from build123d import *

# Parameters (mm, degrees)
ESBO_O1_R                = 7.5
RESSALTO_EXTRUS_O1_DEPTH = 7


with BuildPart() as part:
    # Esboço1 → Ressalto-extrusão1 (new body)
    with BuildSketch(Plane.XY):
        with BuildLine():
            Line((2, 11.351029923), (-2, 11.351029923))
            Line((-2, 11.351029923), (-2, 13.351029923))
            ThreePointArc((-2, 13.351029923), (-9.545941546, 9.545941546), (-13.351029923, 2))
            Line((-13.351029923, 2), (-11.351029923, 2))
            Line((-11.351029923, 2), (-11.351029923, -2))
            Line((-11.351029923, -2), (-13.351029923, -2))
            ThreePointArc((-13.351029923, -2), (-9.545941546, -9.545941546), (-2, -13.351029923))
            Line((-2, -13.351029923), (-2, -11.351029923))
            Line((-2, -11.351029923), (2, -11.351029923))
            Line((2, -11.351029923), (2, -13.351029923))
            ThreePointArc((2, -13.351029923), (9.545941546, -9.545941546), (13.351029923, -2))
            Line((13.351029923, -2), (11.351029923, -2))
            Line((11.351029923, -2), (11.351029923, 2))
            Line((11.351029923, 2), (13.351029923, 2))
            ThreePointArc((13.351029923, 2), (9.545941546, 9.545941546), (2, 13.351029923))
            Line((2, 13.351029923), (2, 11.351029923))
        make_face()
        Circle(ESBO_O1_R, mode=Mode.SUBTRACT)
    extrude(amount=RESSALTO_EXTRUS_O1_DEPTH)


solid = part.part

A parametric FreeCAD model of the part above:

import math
import FreeCAD as App
import Part
import Sketcher

doc = App.newDocument("Part")
body = doc.addObject("PartDesign::Body", "Body")

# Sketch on XY plane
sketch1 = body.newObject("Sketcher::SketchObject", "Sketch")
sketch1.AttachmentSupport = (doc.getObject("XY_Plane"), [""])
sketch1.MapMode = "FlatFace"
sketch1.addGeometry(Part.LineSegment(App.Vector(2, 11.35103, 0), App.Vector(-2, 11.35103, 0)), False)
sketch1.addGeometry(Part.LineSegment(App.Vector(-2, 11.35103, 0), App.Vector(-2, 13.35103, 0)), False)
sketch1.addGeometry(Part.ArcOfCircle(Part.Circle(App.Vector(0, 0, 0), App.Vector(0, 0, 1), 13.5), math.radians(98.519624), math.radians(171.480376)), False)
sketch1.addGeometry(Part.LineSegment(App.Vector(-13.35103, 2, 0), App.Vector(-11.35103, 2, 0)), False)
sketch1.addGeometry(Part.LineSegment(App.Vector(-11.35103, 2, 0), App.Vector(-11.35103, -2, 0)), False)
sketch1.addGeometry(Part.LineSegment(App.Vector(-11.35103, -2, 0), App.Vector(-13.35103, -2, 0)), False)
sketch1.addGeometry(Part.ArcOfCircle(Part.Circle(App.Vector(0, 0, 0), App.Vector(0, 0, 1), 13.5), math.radians(-171.480376), math.radians(-98.519624)), False)
sketch1.addGeometry(Part.LineSegment(App.Vector(-2, -13.35103, 0), App.Vector(-2, -11.35103, 0)), False)
sketch1.addGeometry(Part.LineSegment(App.Vector(-2, -11.35103, 0), App.Vector(2, -11.35103, 0)), False)
sketch1.addGeometry(Part.LineSegment(App.Vector(2, -11.35103, 0), App.Vector(2, -13.35103, 0)), False)
sketch1.addGeometry(Part.ArcOfCircle(Part.Circle(App.Vector(0, 0, 0), App.Vector(0, 0, 1), 13.5), math.radians(-81.480376), math.radians(-8.519624)), False)
sketch1.addGeometry(Part.LineSegment(App.Vector(13.35103, -2, 0), App.Vector(11.35103, -2, 0)), False)
sketch1.addGeometry(Part.LineSegment(App.Vector(11.35103, -2, 0), App.Vector(11.35103, 2, 0)), False)
sketch1.addGeometry(Part.LineSegment(App.Vector(11.35103, 2, 0), App.Vector(13.35103, 2, 0)), False)
sketch1.addGeometry(Part.ArcOfCircle(Part.Circle(App.Vector(0, 0, 0), App.Vector(0, 0, 1), 13.5), math.radians(8.519624), math.radians(81.480376)), False)
sketch1.addGeometry(Part.LineSegment(App.Vector(2, 13.35103, 0), App.Vector(2, 11.35103, 0)), False)
sketch1.addGeometry(Part.Circle(App.Vector(0, 0, 0), App.Vector(0, 0, 1), 7.5), False)
sketch1.addConstraint(Sketcher.Constraint("Coincident", 0, 2, 1, 1))
sketch1.addConstraint(Sketcher.Constraint("Coincident", 1, 2, 2, 1))
sketch1.addConstraint(Sketcher.Constraint("Coincident", 2, 2, 3, 1))
sketch1.addConstraint(Sketcher.Constraint("Coincident", 3, 2, 4, 1))
sketch1.addConstraint(Sketcher.Constraint("Coincident", 4, 2, 5, 1))
sketch1.addConstraint(Sketcher.Constraint("Coincident", 5, 2, 6, 1))
sketch1.addConstraint(Sketcher.Constraint("Coincident", 6, 2, 7, 1))
sketch1.addConstraint(Sketcher.Constraint("Coincident", 7, 2, 8, 1))
sketch1.addConstraint(Sketcher.Constraint("Coincident", 8, 2, 9, 1))
sketch1.addConstraint(Sketcher.Constraint("Coincident", 9, 2, 10, 1))
sketch1.addConstraint(Sketcher.Constraint("Coincident", 10, 2, 11, 1))
sketch1.addConstraint(Sketcher.Constraint("Coincident", 11, 2, 12, 1))
sketch1.addConstraint(Sketcher.Constraint("Coincident", 12, 2, 13, 1))
sketch1.addConstraint(Sketcher.Constraint("Coincident", 13, 2, 14, 1))
sketch1.addConstraint(Sketcher.Constraint("Coincident", 14, 2, 15, 1))
sketch1.addConstraint(Sketcher.Constraint("Coincident", 15, 2, 0, 1))
sketch1.addConstraint(Sketcher.Constraint("Horizontal", 0))
sketch1.addConstraint(Sketcher.Constraint("Vertical", 1))
sketch1.addConstraint(Sketcher.Constraint("Horizontal", 3))
sketch1.addConstraint(Sketcher.Constraint("Vertical", 4))
sketch1.addConstraint(Sketcher.Constraint("Horizontal", 5))
sketch1.addConstraint(Sketcher.Constraint("Vertical", 7))
sketch1.addConstraint(Sketcher.Constraint("Horizontal", 8))
sketch1.addConstraint(Sketcher.Constraint("Vertical", 9))
sketch1.addConstraint(Sketcher.Constraint("Horizontal", 11))
sketch1.addConstraint(Sketcher.Constraint("Vertical", 12))
sketch1.addConstraint(Sketcher.Constraint("Horizontal", 13))
sketch1.addConstraint(Sketcher.Constraint("Vertical", 15))
sketch1.addConstraint(Sketcher.Constraint("Coincident", 2, 3, -1, 1))
sketch1.addConstraint(Sketcher.Constraint("Coincident", 6, 3, -1, 1))
sketch1.addConstraint(Sketcher.Constraint("Coincident", 10, 3, -1, 1))
sketch1.addConstraint(Sketcher.Constraint("Coincident", 14, 3, -1, 1))
sketch1.addConstraint(Sketcher.Constraint("Coincident", 16, 3, -1, 1))
sketch1.addConstraint(Sketcher.Constraint("Equal", 2, 6))
sketch1.addConstraint(Sketcher.Constraint("Equal", 6, 10))
sketch1.addConstraint(Sketcher.Constraint("Equal", 10, 14))
sketch1.addConstraint(Sketcher.Constraint("Symmetric", 0, 2, 8, 2, -1, 1))
sketch1.addConstraint(Sketcher.Constraint("Symmetric", 3, 2, 11, 2, -1, 1))
sketch1.addConstraint(Sketcher.Constraint("Horizontal", 6, 2, 9, 2))
sketch1.addConstraint(Sketcher.Constraint("Horizontal", 5, 2, 10, 2))
sketch1.addConstraint(Sketcher.Constraint("Horizontal", 3, 2, 12, 2))
sketch1.addConstraint(Sketcher.Constraint("Horizontal", 1, 2, 14, 2))
sketch1.addConstraint(Sketcher.Constraint("Equal", 13, 1))
sketch1.addConstraint(Sketcher.Constraint("Equal", 8, 4))
sketch1.addConstraint(Sketcher.Constraint("Diameter", 16, 15.0))
sketch1.addConstraint(Sketcher.Constraint("Radius", 2, 13.5))
sketch1.addConstraint(Sketcher.Constraint("DistanceX", 0, 2, 0, 1, 4.0))
sketch1.addConstraint(Sketcher.Constraint("DistanceX", 3, 1, 3, 2, 2.0))
pad1 = body.newObject("PartDesign::Pad", "Pad")
pad1.Profile = sketch1
pad1.Length = 7

doc.recompute()
